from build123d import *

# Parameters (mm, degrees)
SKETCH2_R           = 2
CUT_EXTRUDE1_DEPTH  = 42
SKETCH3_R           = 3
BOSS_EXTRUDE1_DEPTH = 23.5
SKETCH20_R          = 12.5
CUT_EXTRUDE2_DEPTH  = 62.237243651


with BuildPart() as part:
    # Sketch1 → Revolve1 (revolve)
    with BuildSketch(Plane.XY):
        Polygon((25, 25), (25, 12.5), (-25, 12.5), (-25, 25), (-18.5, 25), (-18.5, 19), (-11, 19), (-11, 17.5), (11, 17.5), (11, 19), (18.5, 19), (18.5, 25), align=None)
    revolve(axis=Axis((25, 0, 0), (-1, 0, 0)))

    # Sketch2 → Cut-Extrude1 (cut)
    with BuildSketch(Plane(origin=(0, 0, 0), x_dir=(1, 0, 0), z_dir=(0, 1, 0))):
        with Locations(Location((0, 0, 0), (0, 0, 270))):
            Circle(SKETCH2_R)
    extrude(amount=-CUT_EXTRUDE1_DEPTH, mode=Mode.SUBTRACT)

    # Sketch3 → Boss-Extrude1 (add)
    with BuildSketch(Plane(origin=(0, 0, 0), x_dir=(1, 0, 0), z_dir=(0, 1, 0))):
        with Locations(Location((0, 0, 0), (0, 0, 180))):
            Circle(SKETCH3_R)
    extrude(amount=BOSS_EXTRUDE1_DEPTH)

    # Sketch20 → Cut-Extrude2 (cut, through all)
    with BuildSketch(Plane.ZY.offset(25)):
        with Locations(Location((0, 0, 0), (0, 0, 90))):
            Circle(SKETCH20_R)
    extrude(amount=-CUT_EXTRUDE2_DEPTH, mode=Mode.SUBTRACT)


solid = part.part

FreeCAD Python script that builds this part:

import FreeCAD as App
import Part
import Sketcher
from FreeCAD import Vector

doc = App.newDocument("Part")
params = doc.addObject("Spreadsheet::Sheet", "Params")
for row, (alias, value) in enumerate([
    ("sketch1_width", "22 mm"),
    ("sketch1_width2", "50 mm"),
    ("sketch1_height", "6 mm"),
    ("sketch1_width3", "6.5 mm"),
    ("sketch1_height2", "12.5 mm"),
    ("revolution_angle", "360 deg"),
    ("sketch2_diameter", "4 mm"),
    ("pocket1_length", "42 mm"),
    ("sketch3_diameter", "6 mm"),
    ("pad1_length", "23.5 mm"),
    ("sketch4_diameter", "25 mm"),
], start=1):
    params.set(f"A{row}", alias)
    params.set(f"B{row}", "=" + value)
    params.setAlias(f"B{row}", alias)

body = doc.addObject("PartDesign::Body", "Body")

# Sketch on XY plane
sketch1 = body.newObject("Sketcher::SketchObject", "Sketch")
sketch1.AttachmentSupport = (doc.getObject("XY_Plane"), [""])
sketch1.MapMode = "FlatFace"
sketch1.addGeometry(Part.LineSegment(Vector(25, 12.5, 0), Vector(25, 25, 0)), False)
sketch1.addGeometry(Part.LineSegment(Vector(25, 25, 0), Vector(18.5, 25, 0)), False)
sketch1.addGeometry(Part.LineSegment(Vector(18.5, 25, 0), Vector(18.5, 19, 0)), False)
sketch1.addGeometry(Part.LineSegment(Vector(18.5, 19, 0), Vector(11, 19, 0)), False)
sketch1.addGeometry(Part.LineSegment(Vector(11, 19, 0), Vector(11, 17.5, 0)), False)
sketch1.addGeometry(Part.LineSegment(Vector(11, 17.5, 0), Vector(-11, 17.5, 0)), False)
sketch1.addGeometry(Part.LineSegment(Vector(-11, 17.5, 0), Vector(-11, 19, 0)), False)
sketch1.addGeometry(Part.LineSegment(Vector(-11, 19, 0), Vector(-18.5, 19, 0)), False)
sketch1.addGeometry(Part.LineSegment(Vector(-18.5, 19, 0), Vector(-18.5, 25, 0)), False)
sketch1.addGeometry(Part.LineSegment(Vector(-18.5, 25, 0), Vector(-25, 25, 0)), False)
sketch1.addGeometry(Part.LineSegment(Vector(-25, 25, 0), Vector(-25, 12.5, 0)), False)
sketch1.addGeometry(Part.LineSegment(Vector(-25, 12.5, 0), Vector(25, 12.5, 0)), False)
sketch1.addConstraint(Sketcher.Constraint("Coincident", 0, 2, 1, 1))
sketch1.addConstraint(Sketcher.Constraint("Coincident", 1, 2, 2, 1))
sketch1.addConstraint(Sketcher.Constraint("Coincident", 2, 2, 3, 1))
sketch1.addConstraint(Sketcher.Constraint("Coincident", 3, 2, 4, 1))
sketch1.addConstraint(Sketcher.Constraint("Coincident", 4, 2, 5, 1))
sketch1.addConstraint(Sketcher.Constraint("Coincident", 5, 2, 6, 1))
sketch1.addConstraint(Sketcher.Constraint("Coincident", 6, 2, 7, 1))
sketch1.addConstraint(Sketcher.Constraint("Coincident", 7, 2, 8, 1))
sketch1.addConstraint(Sketcher.Constraint("Coincident", 8, 2, 9, 1))
sketch1.addConstraint(Sketcher.Constraint("Coincident", 9, 2, 10, 1))
sketch1.addConstraint(Sketcher.Constraint("Coincident", 10, 2, 11, 1))
sketch1.addConstraint(Sketcher.Constraint("Coincident", 11, 2, 0, 1))
sketch1.addConstraint(Sketcher.Constraint("Vertical", 0))
sketch1.addConstraint(Sketcher.Constraint("Horizontal", 1))
sketch1.addConstraint(Sketcher.Constraint("Vertical", 2))
sketch1.addConstraint(Sketcher.Constraint("Horizontal", 3))
sketch1.addConstraint(Sketcher.Constraint("Vertical", 4))
sketch1.addConstraint(Sketcher.Constraint("Horizontal", 5))
sketch1.addConstraint(Sketcher.Constraint("Vertical", 6))
sketch1.addConstraint(Sketcher.Constraint("Horizontal", 7))
sketch1.addConstraint(Sketcher.Constraint("Vertical", 8))
sketch1.addConstraint(Sketcher.Constraint("Horizontal", 9))
sketch1.addConstraint(Sketcher.Constraint("Vertical", 10))
sketch1.addConstraint(Sketcher.Constraint("Horizontal", 11))
sketch1.addConstraint(Sketcher.Constraint("Symmetric", 3, 2, 6, 2, -2))
sketch1.addConstraint(Sketcher.Constraint("Symmetric", 1, 2, 8, 2, -2))
sketch1.addConstraint(Sketcher.Constraint("Equal", 1, 9))
sketch1.addConstraint(Sketcher.Constraint("DistanceX", 5, 2, 5, 1, 22.0))
sketch1.addConstraint(Sketcher.Constraint("DistanceX", 11, 1, 11, 2, 50.0))
sketch1.addConstraint(Sketcher.Constraint("DistanceY", 2, 2, 2, 1, 6.0))
sketch1.addConstraint(Sketcher.Constraint("DistanceX", 1, 2, 1, 1, 6.5))
sketch1.addConstraint(Sketcher.Constraint("DistanceY", 0, 1, 0, 2, 12.5))
sketch1.addConstraint(Sketcher.Constraint("DistanceY", 4, 2, 4, 1, 1.5))
sketch1.addConstraint(Sketcher.Constraint("DistanceY", -1, 1, 0, 2, 25.0))
sketch1.setExpression("Constraints[27]", "Params.sketch1_width")
sketch1.setExpression("Constraints[28]", "Params.sketch1_width2")
sketch1.setExpression("Constraints[29]", "Params.sketch1_height")
sketch1.setExpression("Constraints[30]", "Params.sketch1_width3")
sketch1.setExpression("Constraints[31]", "Params.sketch1_height2")
revolution = body.newObject("PartDesign::Revolution", "Revolution")
revolution.Profile = sketch1
revolution.ReferenceAxis = (sketch1, ["H_Axis"])
revolution.setExpression("Angle", "Params.revolution_angle")

# Sketch on XZ plane
sketch2 = body.newObject("Sketcher::SketchObject", "Sketch001")
sketch2.AttachmentSupport = (doc.getObject("XZ_Plane"), [""])
sketch2.MapMode = "FlatFace"
sketch2.addGeometry(Part.Circle(Vector(0, 0, 0), Vector(0, 0, 1), 2), False)
sketch2.addConstraint(Sketcher.Constraint("Coincident", 0, 3, -1, 1))
sketch2.addConstraint(Sketcher.Constraint("Diameter", 0, 4.0))
sketch2.setExpression("Constraints[1]", "Params.sketch2_diameter")
pocket1 = body.newObject("PartDesign::Pocket", "Pocket")
pocket1.Profile = sketch2
pocket1.setExpression("Length", "Params.pocket1_length")
pocket1.Reversed = True

# Sketch on XZ plane
sketch3 = body.newObject("Sketcher::SketchObject", "Sketch002")
sketch3.AttachmentSupport = (doc.getObject("XZ_Plane"), [""])
sketch3.MapMode = "FlatFace"
sketch3.addGeometry(Part.Circle(Vector(0, 0, 0), Vector(0, 0, 1), 3), False)
sketch3.addConstraint(Sketcher.Constraint("Coincident", 0, 3, -1, 1))
sketch3.addConstraint(Sketcher.Constraint("Diameter", 0, 6.0))
sketch3.setExpression("Constraints[1]", "Params.sketch3_diameter")
pad1 = body.newObject("PartDesign::Pad", "Pad")
pad1.Profile = sketch3
pad1.setExpression("Length", "Params.pad1_length")
pad1.Reversed = True

# Sketch on YZ plane
sketch4 = body.newObject("Sketcher::SketchObject", "Sketch003")
sketch4.AttachmentSupport = (doc.getObject("YZ_Plane"), [""])
sketch4.MapMode = "FlatFace"
sketch4.AttachmentOffset = App.Placement(Vector(0, 0, -25), App.Rotation())
sketch4.addGeometry(Part.Circle(Vector(0, 0, 0), Vector(0, 0, 1), 12.5), False)
sketch4.addConstraint(Sketcher.Constraint("Coincident", 0, 3, -1, 1))
sketch4.addConstraint(Sketcher.Constraint("Diameter", 0, 25.0))
sketch4.setExpression("Constraints[1]", "Params.sketch4_diameter")
pocket2 = body.newObject("PartDesign::Pocket", "Pocket001")
pocket2.Profile = sketch4
pocket2.Type = "ThroughAll"
pocket2.Reversed = True

doc.recompute()
